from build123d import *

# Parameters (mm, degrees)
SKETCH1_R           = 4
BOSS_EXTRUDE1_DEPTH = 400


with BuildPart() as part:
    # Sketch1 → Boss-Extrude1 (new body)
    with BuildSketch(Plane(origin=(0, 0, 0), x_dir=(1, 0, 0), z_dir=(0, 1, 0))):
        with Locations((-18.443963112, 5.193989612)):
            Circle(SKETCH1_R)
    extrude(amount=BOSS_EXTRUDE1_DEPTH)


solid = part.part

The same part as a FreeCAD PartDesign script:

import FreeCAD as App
import Part
import Sketcher

doc = App.newDocument("Part")
body = doc.addObject("PartDesign::Body", "Body")

sketch1 = body.newObject("Sketcher::SketchObject", "Sketch")
sketch1.AttachmentSupport = (doc.getObject("XZ_Plane"), [""])
sketch1.MapMode = "FlatFace"
sketch1.addGeometry(Part.Circle(App.Vector(-18.4, -5.2, 0), App.Vector(0, 0, 1), 4), False)
sketch1.addConstraint([
    Sketcher.Constraint("Diameter", 0, 8.0),
    Sketcher.Constraint("DistanceY", 0, 3, -1, 1, 5.19399),
    Sketcher.Constraint("DistanceX", 0, 3, -1, 1, 18.443963),
])
pad1 = body.newObject("PartDesign::Pad", "Pad")
pad1.Profile = sketch1
pad1.Length = 400
pad1.Reversed = True

doc.recompute()
